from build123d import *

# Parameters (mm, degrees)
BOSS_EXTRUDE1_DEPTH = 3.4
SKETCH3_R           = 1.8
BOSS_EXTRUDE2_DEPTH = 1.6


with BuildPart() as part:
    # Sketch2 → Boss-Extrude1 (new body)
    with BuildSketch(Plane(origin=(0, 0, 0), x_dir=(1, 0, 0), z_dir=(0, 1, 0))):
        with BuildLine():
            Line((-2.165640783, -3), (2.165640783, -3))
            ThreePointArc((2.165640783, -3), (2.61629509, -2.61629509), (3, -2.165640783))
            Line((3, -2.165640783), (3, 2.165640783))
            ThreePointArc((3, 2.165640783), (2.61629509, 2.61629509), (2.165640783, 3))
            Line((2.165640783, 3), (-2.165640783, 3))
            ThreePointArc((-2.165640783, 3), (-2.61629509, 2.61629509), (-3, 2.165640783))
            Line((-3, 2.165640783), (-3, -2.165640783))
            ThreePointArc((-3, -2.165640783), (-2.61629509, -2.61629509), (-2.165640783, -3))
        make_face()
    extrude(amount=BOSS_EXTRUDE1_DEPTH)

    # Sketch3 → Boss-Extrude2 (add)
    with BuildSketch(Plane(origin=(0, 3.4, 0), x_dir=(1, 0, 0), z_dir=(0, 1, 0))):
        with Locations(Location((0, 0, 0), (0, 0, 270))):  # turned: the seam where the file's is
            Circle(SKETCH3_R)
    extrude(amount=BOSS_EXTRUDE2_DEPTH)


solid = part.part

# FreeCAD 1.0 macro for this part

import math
import FreeCAD as App
import Part
import Sketcher

doc = App.newDocument("Part")
body = doc.addObject("PartDesign::Body", "Body")

# Sketch on XZ plane
sketch1 = body.newObject("Sketcher::SketchObject", "Sketch")
sketch1.AttachmentSupport = (doc.getObject("XZ_Plane"), [""])
sketch1.MapMode = "FlatFace"
sketch1.addGeometry(Part.LineSegment(App.Vector(-2.2, 3, 0), App.Vector(2.2, 3, 0)), False)
sketch1.addGeometry(Part.ArcOfCircle(Part.Circle(App.Vector(0, 0, 0), App.Vector(0, 0, 1), 3.7), math.radians(35.82), math.radians(54.18)), False)
sketch1.addGeometry(Part.LineSegment(App.Vector(3, 2.2, 0), App.Vector(3, -2.2, 0)), False)
sketch1.addGeometry(Part.ArcOfCircle(Part.Circle(App.Vector(0, 0, 0), App.Vector(0, 0, 1), 3.7), math.radians(-54.18), math.radians(-35.82)), False)
sketch1.addGeometry(Part.LineSegment(App.Vector(2.2, -3, 0), App.Vector(-2.2, -3, 0)), False)
sketch1.addGeometry(Part.ArcOfCircle(Part.Circle(App.Vector(0, 0, 0), App.Vector(0, 0, 1), 3.7), math.radians(-144.18), math.radians(-125.82)), False)
sketch1.addGeometry(Part.LineSegment(App.Vector(-3, -2.2, 0), App.Vector(-3, 2.2, 0)), False)
sketch1.addGeometry(Part.ArcOfCircle(Part.Circle(App.Vector(0, 0, 0), App.Vector(0, 0, 1), 3.7), math.radians(125.82), math.radians(144.18)), False)
sketch1.addConstraint(Sketcher.Constraint("Coincident", 0, 2, 1, 2))
sketch1.addConstraint(Sketcher.Constraint("Coincident", 1, 1, 2, 1))
sketch1.addConstraint(Sketcher.Constraint("Coincident", 2, 2, 3, 2))
sketch1.addConstraint(Sketcher.Constraint("Coincident", 3, 1, 4, 1))
sketch1.addConstraint(Sketcher.Constraint("Coincident", 4, 2, 5, 2))
sketch1.addConstraint(Sketcher.Constraint("Coincident", 5, 1, 6, 1))
sketch1.addConstraint(Sketcher.Constraint("Coincident", 6, 2, 7, 2))
sketch1.addConstraint(Sketcher.Constraint("Coincident", 7, 1, 0, 1))
sketch1.addConstraint(Sketcher.Constraint("Horizontal", 0))
sketch1.addConstraint(Sketcher.Constraint("Vertical", 2))
sketch1.addConstraint(Sketcher.Constraint("Horizontal", 4))
sketch1.addConstraint(Sketcher.Constraint("Vertical", 6))
sketch1.addConstraint(Sketcher.Constraint("Coincident", 1, 3, -1, 1))
sketch1.addConstraint(Sketcher.Constraint("Coincident", 3, 3, -1, 1))
sketch1.addConstraint(Sketcher.Constraint("Coincident", 5, 3, -1, 1))
sketch1.addConstraint(Sketcher.Constraint("Coincident", 7, 3, -1, 1))
sketch1.addConstraint(Sketcher.Constraint("Equal", 1, 3))
sketch1.addConstraint(Sketcher.Constraint("Equal", 3, 5))
sketch1.addConstraint(Sketcher.Constraint("Equal", 5, 7))
sketch1.addConstraint(Sketcher.Constraint("Horizontal", 2, 2, 5, 1))
sketch1.addConstraint(Sketcher.Constraint("Vertical", 0, 2, 3, 1))
sketch1.addConstraint(Sketcher.Constraint("Equal", 4, 2))
sketch1.addConstraint(Sketcher.Constraint("Radius", 1, 3.7))
sketch1.addConstraint(Sketcher.Constraint("DistanceY", -1, 1, 0, 2, 3.0))
pad1 = body.newObject("PartDesign::Pad", "Pad")
pad1.Profile = sketch1
pad1.Length = 3.4
pad1.Reversed = True

# Sketch on XZ plane
sketch2 = body.newObject("Sketcher::SketchObject", "Sketch001")
sketch2.AttachmentSupport = (doc.getObject("XZ_Plane"), [""])
sketch2.MapMode = "FlatFace"
sketch2.AttachmentOffset = App.Placement(App.Vector(0, 0, -3.4), App.Rotation())
sketch2.addGeometry(Part.Circle(App.Vector(0, 0, 0), App.Vector(0, 0, 1), 1.8), False)
sketch2.addConstraint(Sketcher.Constraint("Coincident", 0, 3, -1, 1))
sketch2.addConstraint(Sketcher.Constraint("Diameter", 0, 3.6))
pad2 = body.newObject("PartDesign::Pad", "Pad001")
pad2.Profile = sketch2
pad2.Length = 1.6
pad2.Reversed = True

doc.recompute()
